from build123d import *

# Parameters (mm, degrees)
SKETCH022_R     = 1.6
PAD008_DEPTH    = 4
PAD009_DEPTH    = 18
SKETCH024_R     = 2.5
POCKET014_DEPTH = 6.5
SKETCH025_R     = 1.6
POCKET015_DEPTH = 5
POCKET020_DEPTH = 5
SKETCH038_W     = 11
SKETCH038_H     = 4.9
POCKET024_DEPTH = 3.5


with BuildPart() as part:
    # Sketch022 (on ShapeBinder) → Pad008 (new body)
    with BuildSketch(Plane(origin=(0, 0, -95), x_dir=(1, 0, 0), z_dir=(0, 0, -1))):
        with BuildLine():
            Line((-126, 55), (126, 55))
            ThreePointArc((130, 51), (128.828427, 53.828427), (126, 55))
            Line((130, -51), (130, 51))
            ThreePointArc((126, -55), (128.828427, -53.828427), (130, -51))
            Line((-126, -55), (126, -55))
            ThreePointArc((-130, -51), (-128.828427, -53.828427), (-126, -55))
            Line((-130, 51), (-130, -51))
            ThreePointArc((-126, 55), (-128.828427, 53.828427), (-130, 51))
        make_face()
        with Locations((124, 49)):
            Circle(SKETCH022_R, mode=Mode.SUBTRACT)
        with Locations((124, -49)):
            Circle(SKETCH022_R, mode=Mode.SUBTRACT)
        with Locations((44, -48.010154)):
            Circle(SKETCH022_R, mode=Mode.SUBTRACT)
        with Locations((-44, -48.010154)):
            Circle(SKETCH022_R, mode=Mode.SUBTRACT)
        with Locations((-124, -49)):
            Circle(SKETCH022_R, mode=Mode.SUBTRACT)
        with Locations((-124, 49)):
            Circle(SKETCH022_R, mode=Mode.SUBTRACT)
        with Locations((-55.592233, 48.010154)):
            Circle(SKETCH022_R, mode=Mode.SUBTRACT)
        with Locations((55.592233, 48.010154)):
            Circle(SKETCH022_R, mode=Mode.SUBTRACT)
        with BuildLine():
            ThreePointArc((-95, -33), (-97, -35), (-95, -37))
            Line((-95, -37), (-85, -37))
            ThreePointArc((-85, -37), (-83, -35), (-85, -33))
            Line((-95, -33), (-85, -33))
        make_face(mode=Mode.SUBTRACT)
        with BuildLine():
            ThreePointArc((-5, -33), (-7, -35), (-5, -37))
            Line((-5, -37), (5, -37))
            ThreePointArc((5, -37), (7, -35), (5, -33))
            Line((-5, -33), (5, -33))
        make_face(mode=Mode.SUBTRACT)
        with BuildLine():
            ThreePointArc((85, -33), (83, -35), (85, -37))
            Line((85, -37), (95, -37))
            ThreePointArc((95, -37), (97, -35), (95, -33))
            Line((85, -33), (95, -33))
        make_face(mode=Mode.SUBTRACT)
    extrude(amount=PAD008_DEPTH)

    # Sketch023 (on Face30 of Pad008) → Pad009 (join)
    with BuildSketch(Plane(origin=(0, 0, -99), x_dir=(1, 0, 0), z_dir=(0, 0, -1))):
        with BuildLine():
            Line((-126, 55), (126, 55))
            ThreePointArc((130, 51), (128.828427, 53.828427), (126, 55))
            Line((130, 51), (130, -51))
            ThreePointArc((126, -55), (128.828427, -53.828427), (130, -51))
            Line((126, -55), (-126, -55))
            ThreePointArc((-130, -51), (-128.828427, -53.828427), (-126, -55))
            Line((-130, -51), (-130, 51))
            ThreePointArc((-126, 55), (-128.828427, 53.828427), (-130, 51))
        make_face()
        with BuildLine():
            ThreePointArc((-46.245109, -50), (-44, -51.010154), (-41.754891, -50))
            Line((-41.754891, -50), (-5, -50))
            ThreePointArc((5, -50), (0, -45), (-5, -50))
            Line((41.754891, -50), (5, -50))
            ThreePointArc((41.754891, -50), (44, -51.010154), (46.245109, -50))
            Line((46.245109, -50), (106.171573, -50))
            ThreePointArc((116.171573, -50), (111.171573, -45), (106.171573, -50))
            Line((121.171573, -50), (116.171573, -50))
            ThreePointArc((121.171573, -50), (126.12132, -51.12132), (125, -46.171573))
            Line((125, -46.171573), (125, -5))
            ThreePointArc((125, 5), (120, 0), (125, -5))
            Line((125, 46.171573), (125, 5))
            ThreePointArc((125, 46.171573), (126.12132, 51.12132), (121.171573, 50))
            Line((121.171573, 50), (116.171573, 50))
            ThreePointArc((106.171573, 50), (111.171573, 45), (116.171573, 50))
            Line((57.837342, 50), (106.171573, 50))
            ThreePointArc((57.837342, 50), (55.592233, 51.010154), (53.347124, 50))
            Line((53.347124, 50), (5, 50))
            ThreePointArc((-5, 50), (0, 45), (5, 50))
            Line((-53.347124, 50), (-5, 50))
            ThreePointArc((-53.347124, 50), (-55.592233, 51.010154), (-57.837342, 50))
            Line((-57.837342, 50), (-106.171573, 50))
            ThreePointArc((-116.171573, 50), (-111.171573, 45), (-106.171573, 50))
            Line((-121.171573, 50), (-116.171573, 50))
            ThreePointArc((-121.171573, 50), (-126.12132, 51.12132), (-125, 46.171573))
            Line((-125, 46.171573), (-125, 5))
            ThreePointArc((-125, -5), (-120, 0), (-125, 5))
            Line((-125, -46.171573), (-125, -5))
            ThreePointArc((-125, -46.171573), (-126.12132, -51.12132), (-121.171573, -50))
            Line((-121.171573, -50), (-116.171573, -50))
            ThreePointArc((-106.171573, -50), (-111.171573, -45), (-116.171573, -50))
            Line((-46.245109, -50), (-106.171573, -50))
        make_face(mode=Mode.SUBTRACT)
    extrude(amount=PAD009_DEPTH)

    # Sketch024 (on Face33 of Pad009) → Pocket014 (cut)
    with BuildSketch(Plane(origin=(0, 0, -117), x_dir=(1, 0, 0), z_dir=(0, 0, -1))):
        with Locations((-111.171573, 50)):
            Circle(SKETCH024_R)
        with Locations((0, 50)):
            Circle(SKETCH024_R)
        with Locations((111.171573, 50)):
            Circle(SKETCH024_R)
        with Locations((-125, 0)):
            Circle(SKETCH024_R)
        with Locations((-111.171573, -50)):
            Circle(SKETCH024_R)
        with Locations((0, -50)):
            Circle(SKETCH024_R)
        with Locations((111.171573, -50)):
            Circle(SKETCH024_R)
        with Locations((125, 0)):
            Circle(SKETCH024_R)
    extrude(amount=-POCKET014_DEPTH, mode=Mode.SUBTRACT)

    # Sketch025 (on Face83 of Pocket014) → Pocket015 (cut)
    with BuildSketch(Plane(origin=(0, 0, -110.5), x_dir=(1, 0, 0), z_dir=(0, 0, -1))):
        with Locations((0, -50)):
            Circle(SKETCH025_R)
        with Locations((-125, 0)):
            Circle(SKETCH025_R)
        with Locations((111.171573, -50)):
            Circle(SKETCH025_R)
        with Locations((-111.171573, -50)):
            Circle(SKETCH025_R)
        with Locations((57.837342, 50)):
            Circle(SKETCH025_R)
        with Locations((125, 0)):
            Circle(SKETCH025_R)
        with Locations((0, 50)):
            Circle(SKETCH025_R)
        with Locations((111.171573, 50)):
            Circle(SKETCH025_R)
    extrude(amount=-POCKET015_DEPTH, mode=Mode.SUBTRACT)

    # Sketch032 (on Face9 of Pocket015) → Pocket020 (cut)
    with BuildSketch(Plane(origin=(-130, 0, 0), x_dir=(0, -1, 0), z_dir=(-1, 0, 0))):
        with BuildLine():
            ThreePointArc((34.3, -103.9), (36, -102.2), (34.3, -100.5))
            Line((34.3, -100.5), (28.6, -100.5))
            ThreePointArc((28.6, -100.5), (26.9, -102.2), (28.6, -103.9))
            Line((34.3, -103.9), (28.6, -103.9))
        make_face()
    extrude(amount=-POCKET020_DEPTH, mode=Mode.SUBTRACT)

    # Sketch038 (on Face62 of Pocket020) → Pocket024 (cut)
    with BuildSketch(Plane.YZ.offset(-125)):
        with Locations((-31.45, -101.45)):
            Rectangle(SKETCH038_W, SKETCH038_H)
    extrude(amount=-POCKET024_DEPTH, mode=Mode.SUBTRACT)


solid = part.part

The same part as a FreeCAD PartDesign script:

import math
import FreeCAD as App
import Part
import Sketcher


def add_polygon(sketch, points):
    """Adds a closed chain of lines whose ends are joined by coincident constraints."""
    first, n = sketch.GeometryCount, len(points)
    for a, b in zip(points, points[1:] + points[:1]):
        sketch.addGeometry(Part.LineSegment(App.Vector(*a, 0), App.Vector(*b, 0)), False)
    for i in range(n):
        sketch.addConstraint(Sketcher.Constraint("Coincident", first + i, 2, first + (i + 1) % n, 1))

doc = App.newDocument("Part")
params = doc.addObject("Spreadsheet::Sheet", "Params")
for row, (alias, value) in enumerate([
    ("sketch1_radius", "4 mm"),
    ("sketch1_radius2", "2 mm"),
    ("sketch1_diameter", "3.2 mm"),
    ("sketch1_width", "252 mm"),
    ("sketch1_width2", "10 mm"),
    ("pad1_length", "4 mm"),
    ("sketch2_radius", "4 mm"),
    ("sketch2_radius2", "5 mm"),
    ("sketch2_radius3", "3 mm"),
    ("sketch2_width", "252 mm"),
    ("sketch2_width2", "5 mm"),
    ("pad2_length", "18 mm"),
    ("sketch3_diameter", "5 mm"),
    ("pocket1_length", "6.5 mm"),
    ("sketch4_diameter", "3.2 mm"),
    ("pocket2_length", "5 mm"),
    ("sketch5_radius", "1.7 mm"),
    ("sketch5_width", "5.7 mm"),
    ("pocket3_length", "5 mm"),
    ("sketch6_width", "11 mm"),
    ("sketch6_height", "4.9 mm"),
    ("pocket4_length", "3.5 mm"),
], start=1):
    params.set(f"A{row}", alias)
    params.set(f"B{row}", "=" + value)
    params.setAlias(f"B{row}", alias)

body = doc.addObject("PartDesign::Body", "Body")

# Sketch on XY plane
sketch1 = body.newObject("Sketcher::SketchObject", "Sketch")
sketch1.AttachmentSupport = (doc.getObject("XY_Plane"), [""])
sketch1.MapMode = "FlatFace"
sketch1.AttachmentOffset = App.Placement(App.Vector(0, 0, -95), App.Rotation())
sketch1.addGeometry([
    Part.LineSegment(App.Vector(126, -55, 0), App.Vector(-126, -55, 0)),  # 0
    Part.ArcOfCircle(Part.Circle(App.Vector(-126, -51, 0), App.Vector(0, 0, 1), 4), math.radians(-179.999994), math.radians(-90.000006)),  # 1
    Part.LineSegment(App.Vector(-130, -51, 0), App.Vector(-130, 51, 0)),  # 2
    Part.ArcOfCircle(Part.Circle(App.Vector(-126, 51, 0), App.Vector(0, 0, 1), 4), math.radians(90.000006), math.radians(179.999994)),  # 3
    Part.LineSegment(App.Vector(-126, 55, 0), App.Vector(126, 55, 0)),  # 4
    Part.ArcOfCircle(Part.Circle(App.Vector(126, 51, 0), App.Vector(0, 0, 1), 4), math.radians(0.000006), math.radians(89.999994)),  # 5
    Part.LineSegment(App.Vector(130, 51, 0), App.Vector(130, -51, 0)),  # 6
    Part.ArcOfCircle(Part.Circle(App.Vector(126, -51, 0), App.Vector(0, 0, 1), 4), math.radians(-89.999994), math.radians(-0.000006)),  # 7
    Part.Circle(App.Vector(124, 49, 0), App.Vector(0, 0, 1), 1.6),  # 8
    Part.LineSegment(App.Vector(85, 33, 0), App.Vector(95, 33, 0)),  # 9
    Part.ArcOfCircle(Part.Circle(App.Vector(95, 35, 0), App.Vector(0, 0, 1), 2), math.radians(-90), math.radians(90)),  # 10
    Part.LineSegment(App.Vector(95, 37, 0), App.Vector(85, 37, 0)),  # 11
    Part.ArcOfCircle(Part.Circle(App.Vector(85, 35, 0), App.Vector(0, 0, 1), 2), math.radians(90), math.radians(270)),  # 12
    Part.Circle(App.Vector(44, 48.010154, 0), App.Vector(0, 0, 1), 1.6),  # 13
    Part.Circle(App.Vector(-44, 48.010154, 0), App.Vector(0, 0, 1), 1.6),  # 14
    Part.LineSegment(App.Vector(-5, 33, 0), App.Vector(5, 33, 0)),  # 15
    Part.ArcOfCircle(Part.Circle(App.Vector(5, 35, 0), App.Vector(0, 0, 1), 2), math.radians(-90), math.radians(90)),  # 16
    Part.LineSegment(App.Vector(5, 37, 0), App.Vector(-5, 37, 0)),  # 17
    Part.ArcOfCircle(Part.Circle(App.Vector(-5, 35, 0), App.Vector(0, 0, 1), 2), math.radians(90), math.radians(270)),  # 18
    Part.Circle(App.Vector(-124, 49, 0), App.Vector(0, 0, 1), 1.6),  # 19
    Part.LineSegment(App.Vector(-95, 33, 0), App.Vector(-85, 33, 0)),  # 20
    Part.ArcOfCircle(Part.Circle(App.Vector(-85, 35, 0), App.Vector(0, 0, 1), 2), math.radians(-90), math.radians(90)),  # 21
    Part.LineSegment(App.Vector(-85, 37, 0), App.Vector(-95, 37, 0)),  # 22
    Part.ArcOfCircle(Part.Circle(App.Vector(-95, 35, 0), App.Vector(0, 0, 1), 2), math.radians(90), math.radians(270)),  # 23
    Part.Circle(App.Vector(124, -49, 0), App.Vector(0, 0, 1), 1.6),  # 24
    Part.Circle(App.Vector(55.592233, -48.010154, 0), App.Vector(0, 0, 1), 1.6),  # 25
    Part.Circle(App.Vector(-55.592233, -48.010154, 0), App.Vector(0, 0, 1), 1.6),  # 26
    Part.Circle(App.Vector(-124, -49, 0), App.Vector(0, 0, 1), 1.6),  # 27
], False)
sketch1.addConstraint([
    Sketcher.Constraint("Tangent", 0, 2, 1, 2),
    Sketcher.Constraint("Tangent", 1, 1, 2, 1),
    Sketcher.Constraint("Tangent", 2, 2, 3, 2),
    Sketcher.Constraint("Tangent", 3, 1, 4, 1),
    Sketcher.Constraint("Tangent", 4, 2, 5, 2),
    Sketcher.Constraint("Tangent", 5, 1, 6, 1),
    Sketcher.Constraint("Tangent", 6, 2, 7, 2),
    Sketcher.Constraint("Tangent", 7, 1, 0, 1),
    Sketcher.Constraint("Tangent", 9, 2, 10, 1),
    Sketcher.Constraint("Tangent", 10, 2, 11, 1),
    Sketcher.Constraint("Tangent", 11, 2, 12, 1),
    Sketcher.Constraint("Tangent", 12, 2, 9, 1),
    Sketcher.Constraint("Tangent", 15, 2, 16, 1),
    Sketcher.Constraint("Tangent", 16, 2, 17, 1),
    Sketcher.Constraint("Tangent", 17, 2, 18, 1),
    Sketcher.Constraint("Tangent", 18, 2, 15, 1),
    Sketcher.Constraint("Tangent", 20, 2, 21, 1),
    Sketcher.Constraint("Tangent", 21, 2, 22, 1),
    Sketcher.Constraint("Tangent", 22, 2, 23, 1),
    Sketcher.Constraint("Tangent", 23, 2, 20, 1),
    Sketcher.Constraint("Horizontal", 0),
    Sketcher.Constraint("Vertical", 2),
    Sketcher.Constraint("Horizontal", 4),
    Sketcher.Constraint("Vertical", 6),
    Sketcher.Constraint("Horizontal", 9),
    Sketcher.Constraint("Horizontal", 11),
    Sketcher.Constraint("Horizontal", 15),
    Sketcher.Constraint("Horizontal", 17),
    Sketcher.Constraint("Horizontal", 20),
    Sketcher.Constraint("Horizontal", 22),
    Sketcher.Constraint("Equal", 1, 3),
    Sketcher.Constraint("Equal", 3, 5),
    Sketcher.Constraint("Equal", 5, 7),
    Sketcher.Constraint("Equal", 8, 13),
    Sketcher.Constraint("Equal", 13, 14),
    Sketcher.Constraint("Equal", 12, 16),
    Sketcher.Constraint("Equal", 14, 19),
    Sketcher.Constraint("Equal", 18, 21),
    Sketcher.Constraint("Equal", 19, 24),
    Sketcher.Constraint("Equal", 24, 25),
    Sketcher.Constraint("Equal", 25, 26),
    Sketcher.Constraint("Equal", 26, 27),
    Sketcher.Constraint("Symmetric", 1, 3, 5, 3, -1, 1),
    Sketcher.Constraint("Symmetric", 19, 3, 24, 3, -1, 1),
    Sketcher.Constraint("Symmetric", 8, 3, 27, 3, -1, 1),
    Sketcher.Constraint("Symmetric", 13, 3, 14, 3, -2),
    Sketcher.Constraint("Symmetric", 8, 3, 19, 3, -2),
    Sketcher.Constraint("Symmetric", 12, 3, 21, 3, -2),
    Sketcher.Constraint("Symmetric", 25, 3, 26, 3, -2),
    Sketcher.Constraint("Horizontal", 12, 3, 16, 3),
    Sketcher.Constraint("Equal", 11, 15),
    Sketcher.Constraint("Equal", 17, 20),
    Sketcher.Constraint("Radius", 1, 4.0),
    Sketcher.Constraint("Radius", 10, 2.0),
    Sketcher.Constraint("Diameter", 8, 3.2),
    Sketcher.Constraint("DistanceX", 0, 2, 0, 1, 252.0),
    Sketcher.Constraint("DistanceX", 9, 1, 9, 2, 10.0),
    Sketcher.Constraint("DistanceY", 2, 1, 2, 2, 102.0),
    Sketcher.Constraint("DistanceX", -1, 1, 8, 3, 124.0),
    Sketcher.Constraint("DistanceY", -1, 1, 8, 3, 49.0),
    Sketcher.Constraint("DistanceX", -1, 1, 10, 3, 95.0),
    Sketcher.Constraint("DistanceY", -1, 1, 10, 3, 35.0),
    Sketcher.Constraint("DistanceX", -1, 1, 13, 3, 44.0),
    Sketcher.Constraint("DistanceX", -1, 1, 16, 3, 5.0),
    Sketcher.Constraint("DistanceY", 25, 3, 13, 3, 96.020308),
    Sketcher.Constraint("DistanceY", -1, 1, 13, 3, 48.010154),
    Sketcher.Constraint("DistanceX", -1, 1, 25, 3, 55.592233),
])
sketch1.setExpression("Constraints[52]", "Params.sketch1_radius")
sketch1.setExpression("Constraints[53]", "Params.sketch1_radius2")
sketch1.setExpression("Constraints[54]", "Params.sketch1_diameter")
sketch1.setExpression("Constraints[55]", "Params.sketch1_width")
sketch1.setExpression("Constraints[56]", "Params.sketch1_width2")
pad1 = body.newObject("PartDesign::Pad", "Pad")
pad1.Profile = sketch1
pad1.setExpression("Length", "Params.pad1_length")
pad1.Reversed = True

# Sketch on XY plane
sketch2 = body.newObject("Sketcher::SketchObject", "Sketch001")
sketch2.AttachmentSupport = (doc.getObject("XY_Plane"), [""])
sketch2.MapMode = "FlatFace"
sketch2.AttachmentOffset = App.Placement(App.Vector(0, 0, -99), App.Rotation())
sketch2.addGeometry([
    Part.LineSegment(App.Vector(126, -55, 0), App.Vector(-126, -55, 0)),  # 0
    Part.ArcOfCircle(Part.Circle(App.Vector(-126, -51, 0), App.Vector(0, 0, 1), 4), math.radians(-179.999994), math.radians(-90.000006)),  # 1
    Part.LineSegment(App.Vector(-130, -51, 0), App.Vector(-130, 51, 0)),  # 2
    Part.ArcOfCircle(Part.Circle(App.Vector(-126, 51, 0), App.Vector(0, 0, 1), 4), math.radians(90.000006), math.radians(179.999994)),  # 3
    Part.LineSegment(App.Vector(-126, 55, 0), App.Vector(126, 55, 0)),  # 4
    Part.ArcOfCircle(Part.Circle(App.Vector(126, 51, 0), App.Vector(0, 0, 1), 4), math.radians(0.000006), math.radians(89.999994)),  # 5
    Part.LineSegment(App.Vector(130, 51, 0), App.Vector(130, -51, 0)),  # 6
    Part.ArcOfCircle(Part.Circle(App.Vector(126, -51, 0), App.Vector(0, 0, 1), 4), math.radians(-89.999994), math.radians(-0.000006)),  # 7
    Part.LineSegment(App.Vector(-46.245109, 50, 0), App.Vector(-106.171573, 50, 0)),  # 8
    Part.ArcOfCircle(Part.Circle(App.Vector(-111.171573, 50, 0), App.Vector(0, 0, 1), 5), math.radians(180), math.radians(360)),  # 9
    Part.LineSegment(App.Vector(-116.171573, 50, 0), App.Vector(-121.171573, 50, 0)),  # 10
    Part.ArcOfCircle(Part.Circle(App.Vector(-124, 49, 0), App.Vector(0, 0, 1), 3), math.radians(19.471226), math.radians(250.528774)),  # 11
    Part.LineSegment(App.Vector(-125, 46.171573, 0), App.Vector(-125, 5, 0)),  # 12
    Part.ArcOfCircle(Part.Circle(App.Vector(-125, 0, 0), App.Vector(0, 0, 1), 5), math.radians(-90), math.radians(90)),  # 13
    Part.LineSegment(App.Vector(-125, -5, 0), App.Vector(-125, -46.171573, 0)),  # 14
    Part.ArcOfCircle(Part.Circle(App.Vector(-124, -49, 0), App.Vector(0, 0, 1), 3), math.radians(109.471226), math.radians(340.528774)),  # 15
    Part.LineSegment(App.Vector(-121.171573, -50, 0), App.Vector(-116.171573, -50, 0)),  # 16
    Part.ArcOfCircle(Part.Circle(App.Vector(-111.171573, -50, 0), App.Vector(0, 0, 1), 5), math.radians(0), math.radians(180)),  # 17
    Part.LineSegment(App.Vector(-106.171573, -50, 0), App.Vector(-57.837342, -50, 0)),  # 18
    Part.ArcOfCircle(Part.Circle(App.Vector(-55.592233, -48.010153, 0), App.Vector(0, 0, 1), 3.000001), math.radians(-138.449334), math.radians(-41.550666)),  # 19
    Part.LineSegment(App.Vector(-53.347124, -50, 0), App.Vector(-5, -50, 0)),  # 20
    Part.ArcOfCircle(Part.Circle(App.Vector(0, -50, 0), App.Vector(0, 0, 1), 5), math.radians(0), math.radians(180)),  # 21
    Part.LineSegment(App.Vector(5, -50, 0), App.Vector(53.347124, -50, 0)),  # 22
    Part.ArcOfCircle(Part.Circle(App.Vector(55.592233, -48.010153, 0), App.Vector(0, 0, 1), 3.000001), math.radians(-138.449334), math.radians(-41.550666)),  # 23
    Part.LineSegment(App.Vector(57.837342, -50, 0), App.Vector(106.171573, -50, 0)),  # 24
    Part.ArcOfCircle(Part.Circle(App.Vector(111.171573, -50, 0), App.Vector(0, 0, 1), 5), math.radians(0), math.radians(180)),  # 25
    Part.LineSegment(App.Vector(116.171573, -50, 0), App.Vector(121.171573, -50, 0)),  # 26
    Part.ArcOfCircle(Part.Circle(App.Vector(124, -49, 0), App.Vector(0, 0, 1), 3), math.radians(-160.528774), math.radians(70.528774)),  # 27
    Part.LineSegment(App.Vector(125, -46.171573, 0), App.Vector(125, -5, 0)),  # 28
    Part.ArcOfCircle(Part.Circle(App.Vector(125, 0, 0), App.Vector(0, 0, 1), 5), math.radians(90), math.radians(270)),  # 29
    Part.LineSegment(App.Vector(125, 5, 0), App.Vector(125, 46.171573, 0)),  # 30
    Part.ArcOfCircle(Part.Circle(App.Vector(124, 49, 0), App.Vector(0, 0, 1), 3), math.radians(-70.528774), math.radians(160.528774)),  # 31
    Part.LineSegment(App.Vector(121.171573, 50, 0), App.Vector(116.171573, 50, 0)),  # 32
    Part.ArcOfCircle(Part.Circle(App.Vector(111.171573, 50, 0), App.Vector(0, 0, 1), 5), math.radians(180), math.radians(360)),  # 33
    Part.LineSegment(App.Vector(106.171573, 50, 0), App.Vector(46.245109, 50, 0)),  # 34
    Part.ArcOfCircle(Part.Circle(App.Vector(44, 48.010153, 0), App.Vector(0, 0, 1), 3.000001), math.radians(41.550666), math.radians(138.449334)),  # 35
    Part.LineSegment(App.Vector(41.754891, 50, 0), App.Vector(5, 50, 0)),  # 36
    Part.ArcOfCircle(Part.Circle(App.Vector(0, 50, 0), App.Vector(0, 0, 1), 5), math.radians(180), math.radians(360)),  # 37
    Part.LineSegment(App.Vector(-5, 50, 0), App.Vector(-41.754891, 50, 0)),  # 38
    Part.ArcOfCircle(Part.Circle(App.Vector(-44, 48.010153, 0), App.Vector(0, 0, 1), 3.000001), math.radians(41.550666), math.radians(138.449334)),  # 39
], False)
sketch2.addConstraint([
    Sketcher.Constraint("Tangent", 0, 2, 1, 2),
    Sketcher.Constraint("Tangent", 1, 1, 2, 1),
    Sketcher.Constraint("Tangent", 2, 2, 3, 2),
    Sketcher.Constraint("Tangent", 3, 1, 4, 1),
    Sketcher.Constraint("Tangent", 4, 2, 5, 2),
    Sketcher.Constraint("Tangent", 5, 1, 6, 1),
    Sketcher.Constraint("Tangent", 6, 2, 7, 2),
    Sketcher.Constraint("Tangent", 7, 1, 0, 1),
    Sketcher.Constraint("Coincident", 8, 2, 9, 2),
    Sketcher.Constraint("Coincident", 9, 1, 10, 1),
    Sketcher.Constraint("Coincident", 10, 2, 11, 1),
    Sketcher.Constraint("Coincident", 11, 2, 12, 1),
    Sketcher.Constraint("Coincident", 12, 2, 13, 2),
    Sketcher.Constraint("Coincident", 13, 1, 14, 1),
    Sketcher.Constraint("Coincident", 14, 2, 15, 1),
    Sketcher.Constraint("Coincident", 15, 2, 16, 1),
    Sketcher.Constraint("Coincident", 16, 2, 17, 2),
    Sketcher.Constraint("Coincident", 17, 1, 18, 1),
    Sketcher.Constraint("Coincident", 18, 2, 19, 1),
    Sketcher.Constraint("Coincident", 19, 2, 20, 1),
    Sketcher.Constraint("Coincident", 20, 2, 21, 2),
    Sketcher.Constraint("Coincident", 21, 1, 22, 1),
    Sketcher.Constraint("Coincident", 22, 2, 23, 1),
    Sketcher.Constraint("Coincident", 23, 2, 24, 1),
    Sketcher.Constraint("Coincident", 24, 2, 25, 2),
    Sketcher.Constraint("Coincident", 25, 1, 26, 1),
    Sketcher.Constraint("Coincident", 26, 2, 27, 1),
    Sketcher.Constraint("Coincident", 27, 2, 28, 1),
    Sketcher.Constraint("Coincident", 28, 2, 29, 2),
    Sketcher.Constraint("Coincident", 29, 1, 30, 1),
    Sketcher.Constraint("Coincident", 30, 2, 31, 1),
    Sketcher.Constraint("Coincident", 31, 2, 32, 1),
    Sketcher.Constraint("Coincident", 32, 2, 33, 2),
    Sketcher.Constraint("Coincident", 33, 1, 34, 1),
    Sketcher.Constraint("Coincident", 34, 2, 35, 1),
    Sketcher.Constraint("Coincident", 35, 2, 36, 1),
    Sketcher.Constraint("Coincident", 36, 2, 37, 2),
    Sketcher.Constraint("Coincident", 37, 1, 38, 1),
    Sketcher.Constraint("Coincident", 38, 2, 39, 1),
    Sketcher.Constraint("Coincident", 39, 2, 8, 1),
    Sketcher.Constraint("Horizontal", 0),
    Sketcher.Constraint("Vertical", 2),
    Sketcher.Constraint("Horizontal", 4),
    Sketcher.Constraint("Vertical", 6),
    Sketcher.Constraint("Horizontal", 8),
    Sketcher.Constraint("Horizontal", 10),
    Sketcher.Constraint("Vertical", 12),
    Sketcher.Constraint("Vertical", 14),
    Sketcher.Constraint("Horizontal", 16),
    Sketcher.Constraint("Horizontal", 18),
    Sketcher.Constraint("Horizontal", 20),
    Sketcher.Constraint("Horizontal", 22),
    Sketcher.Constraint("Horizontal", 24),
    Sketcher.Constraint("Horizontal", 26),
    Sketcher.Constraint("Vertical", 28),
    Sketcher.Constraint("Vertical", 30),
    Sketcher.Constraint("Horizontal", 32),
    Sketcher.Constraint("Horizontal", 34),
    Sketcher.Constraint("Horizontal", 36),
    Sketcher.Constraint("Horizontal", 38),
    Sketcher.Constraint("Equal", 1, 3),
    Sketcher.Constraint("Equal", 3, 5),
    Sketcher.Constraint("Equal", 5, 7),
    Sketcher.Constraint("Equal", 9, 13),
    Sketcher.Constraint("Equal", 11, 15),
    Sketcher.Constraint("Equal", 13, 17),
    Sketcher.Constraint("Equal", 15, 19),
    Sketcher.Constraint("Equal", 17, 21),
    Sketcher.Constraint("Equal", 19, 23),
    Sketcher.Constraint("Equal", 21, 25),
    Sketcher.Constraint("Equal", 23, 27),
    Sketcher.Constraint("Equal", 25, 29),
    Sketcher.Constraint("Equal", 27, 31),
    Sketcher.Constraint("Equal", 29, 33),
    Sketcher.Constraint("Equal", 31, 35),
    Sketcher.Constraint("Equal", 33, 37),
    Sketcher.Constraint("Equal", 35, 39),
    Sketcher.Constraint("Symmetric", 1, 3, 5, 3, -1, 1),
    Sketcher.Constraint("Symmetric", 9, 3, 25, 3, -1, 1),
    Sketcher.Constraint("Symmetric", 11, 3, 27, 3, -1, 1),
    Sketcher.Constraint("Symmetric", 13, 3, 29, 3, -1, 1),
    Sketcher.Constraint("Symmetric", 15, 3, 31, 3, -1, 1),
    Sketcher.Constraint("Symmetric", 17, 3, 33, 3, -1, 1),
    Sketcher.Constraint("Symmetric", 21, 3, 37, 3, -1, 1),
    Sketcher.Constraint("Symmetric", 19, 3, 23, 3, -2),
    Sketcher.Constraint("Symmetric", 17, 3, 25, 3, -2),
    Sketcher.Constraint("Symmetric", 15, 3, 27, 3, -2),
    Sketcher.Constraint("Symmetric", 35, 3, 39, 3, -2),
    Sketcher.Constraint("Symmetric", 20, 2, 21, 1, -2),
    Sketcher.Constraint("Symmetric", 13, 1, 28, 2, -2),
    Sketcher.Constraint("Horizontal", 17, 3, 21, 3),
    Sketcher.Constraint("Horizontal", 37, 3, 8, 2),
    Sketcher.Constraint("Horizontal", 8, 2, 9, 1),
    Sketcher.Constraint("Horizontal", 25, 3, 15, 2),
    Sketcher.Constraint("Horizontal", 16, 2, 17, 1),
    Sketcher.Constraint("Horizontal", 18, 2, 19, 2),
    Sketcher.Constraint("Horizontal", 22, 2, 23, 2),
    Sketcher.Constraint("Horizontal", 24, 2, 25, 1),
    Sketcher.Constraint("Horizontal", 11, 2, 30, 2),
    Sketcher.Constraint("Horizontal", 10, 2, 31, 2),
    Sketcher.Constraint("Horizontal", 32, 2, 33, 1),
    Sketcher.Constraint("Horizontal", 34, 2, 35, 2),
    Sketcher.Constraint("Horizontal", 36, 2, 37, 1),
    Sketcher.Constraint("Vertical", 13, 3, 11, 2),
    Sketcher.Constraint("Vertical", 12, 2, 13, 1),
    Sketcher.Constraint("Radius", 1, 4.0),
    Sketcher.Constraint("Radius", 9, 5.0),
    Sketcher.Constraint("Radius", 11, 3.0),
    Sketcher.Constraint("DistanceX", 0, 2, 0, 1, 252.0),
    Sketcher.Constraint("DistanceX", 10, 2, 10, 1, 5.0),
    Sketcher.Constraint("DistanceY", 2, 1, 2, 2, 102.0),
    Sketcher.Constraint("DistanceY", -1, 1, 9, 3, 50.0),
    Sketcher.Constraint("DistanceX", 11, 3, -1, 1, 124.0),
    Sketcher.Constraint("DistanceY", -1, 1, 11, 3, 49.0),
    Sketcher.Constraint("DistanceX", 13, 3, -1, 1, 125.0),
    Sketcher.Constraint("DistanceX", -1, 1, 35, 3, 44.0),
    Sketcher.Constraint("DistanceX", 18, 1, 18, 2, 48.334231),
    Sketcher.Constraint("DistanceX", 36, 2, 36, 1, 36.754891),
    Sketcher.Constraint("DistanceX", 20, 1, 20, 2, 48.347124),
])
sketch2.setExpression("Constraints[105]", "Params.sketch2_radius")
sketch2.setExpression("Constraints[106]", "Params.sketch2_radius2")
sketch2.setExpression("Constraints[107]", "Params.sketch2_radius3")
sketch2.setExpression("Constraints[108]", "Params.sketch2_width")
sketch2.setExpression("Constraints[109]", "Params.sketch2_width2")
pad2 = body.newObject("PartDesign::Pad", "Pad001")
pad2.Profile = sketch2
pad2.setExpression("Length", "Params.pad2_length")
pad2.Reversed = True

# Sketch on XY plane
sketch3 = body.newObject("Sketcher::SketchObject", "Sketch002")
sketch3.AttachmentSupport = (doc.getObject("XY_Plane"), [""])
sketch3.MapMode = "FlatFace"
sketch3.AttachmentOffset = App.Placement(App.Vector(0, 0, -117), App.Rotation())
sketch3.addGeometry([
    Part.Circle(App.Vector(-111.171573, -50, 0), App.Vector(0, 0, 1), 2.5),  # 0
    Part.Circle(App.Vector(0, -50, 0), App.Vector(0, 0, 1), 2.5),  # 1
    Part.Circle(App.Vector(111.171573, -50, 0), App.Vector(0, 0, 1), 2.5),  # 2
    Part.Circle(App.Vector(-125, 0, 0), App.Vector(0, 0, 1), 2.5),  # 3
    Part.Circle(App.Vector(-111.171573, 50, 0), App.Vector(0, 0, 1), 2.5),  # 4
    Part.Circle(App.Vector(0, 50, 0), App.Vector(0, 0, 1), 2.5),  # 5
    Part.Circle(App.Vector(111.171573, 50, 0), App.Vector(0, 0, 1), 2.5),  # 6
    Part.Circle(App.Vector(125, 0, 0), App.Vector(0, 0, 1), 2.5),  # 7
], False)
sketch3.addConstraint([
    Sketcher.Constraint("Equal", 0, 1),
    Sketcher.Constraint("Equal", 1, 2),
    Sketcher.Constraint("Equal", 2, 3),
    Sketcher.Constraint("Equal", 3, 4),
    Sketcher.Constraint("Equal", 4, 5),
    Sketcher.Constraint("Equal", 5, 6),
    Sketcher.Constraint("Equal", 6, 7),
    Sketcher.Constraint("Symmetric", 2, 3, 4, 3, -1, 1),
    Sketcher.Constraint("Symmetric", 1, 3, 5, 3, -1, 1),
    Sketcher.Constraint("Symmetric", 0, 3, 6, 3, -1, 1),
    Sketcher.Constraint("Symmetric", 3, 3, 7, 3, -1, 1),
    Sketcher.Constraint("Symmetric", 0, 3, 2, 3, -2),
    Sketcher.Constraint("PointOnObject", 1, 3, -2),
    Sketcher.Constraint("PointOnObject", 3, 3, -1),
    Sketcher.Constraint("Horizontal", 0, 3, 1, 3),
    Sketcher.Constraint("Diameter", 0, 5.0),
    Sketcher.Constraint("DistanceY", 0, 3, -1, 1, 50.0),
    Sketcher.Constraint("DistanceX", 3, 3, -1, 1, 125.0),
    Sketcher.Constraint("DistanceX", 0, 3, -1, 1, 111.171573),
])
sketch3.setExpression("Constraints[15]", "Params.sketch3_diameter")
pocket1 = body.newObject("PartDesign::Pocket", "Pocket")
pocket1.Profile = sketch3
pocket1.setExpression("Length", "Params.pocket1_length")
pocket1.Reversed = True

# Sketch on XY plane
sketch4 = body.newObject("Sketcher::SketchObject", "Sketch003")
sketch4.AttachmentSupport = (doc.getObject("XY_Plane"), [""])
sketch4.MapMode = "FlatFace"
sketch4.AttachmentOffset = App.Placement(App.Vector(0, 0, -110.5), App.Rotation())
sketch4.addGeometry([
    Part.Circle(App.Vector(0, 50, 0), App.Vector(0, 0, 1), 1.6),  # 0
    Part.Circle(App.Vector(-125, 0, 0), App.Vector(0, 0, 1), 1.6),  # 1
    Part.Circle(App.Vector(111.171573, 50, 0), App.Vector(0, 0, 1), 1.6),  # 2
    Part.Circle(App.Vector(-111.171573, 50, 0), App.Vector(0, 0, 1), 1.6),  # 3
    Part.Circle(App.Vector(57.837342, -50, 0), App.Vector(0, 0, 1), 1.6),  # 4
    Part.Circle(App.Vector(125, 0, 0), App.Vector(0, 0, 1), 1.6),  # 5
    Part.Circle(App.Vector(0, -50, 0), App.Vector(0, 0, 1), 1.6),  # 6
    Part.Circle(App.Vector(111.171573, -50, 0), App.Vector(0, 0, 1), 1.6),  # 7
], False)
sketch4.addConstraint([
    Sketcher.Constraint("Equal", 0, 1),
    Sketcher.Constraint("Equal", 1, 2),
    Sketcher.Constraint("Equal", 2, 3),
    Sketcher.Constraint("Equal", 3, 4),
    Sketcher.Constraint("Equal", 4, 5),
    Sketcher.Constraint("Equal", 5, 6),
    Sketcher.Constraint("Equal", 6, 7),
    Sketcher.Constraint("Symmetric", 1, 3, 5, 3, -1, 1),
    Sketcher.Constraint("Symmetric", 0, 3, 6, 3, -1, 1),
    Sketcher.Constraint("Symmetric", 3, 3, 7, 3, -1, 1),
    Sketcher.Constraint("Symmetric", 2, 3, 3, 3, -2),
    Sketcher.Constraint("PointOnObject", 0, 3, -2),
    Sketcher.Constraint("PointOnObject", 1, 3, -1),
    Sketcher.Constraint("Horizontal", 0, 3, 2, 3),
    Sketcher.Constraint("Horizontal", 4, 3, 6, 3),
    Sketcher.Constraint("Diameter", 0, 3.2),
    Sketcher.Constraint("DistanceY", -1, 1, 0, 3, 50.0),
    Sketcher.Constraint("DistanceX", 1, 3, -1, 1, 125.0),
    Sketcher.Constraint("DistanceX", 4, 3, 2, 3, 53.334231),
    Sketcher.Constraint("DistanceX", 1, 3, 4, 3, 182.837342),
])
sketch4.setExpression("Constraints[15]", "Params.sketch4_diameter")
pocket2 = body.newObject("PartDesign::Pocket", "Pocket001")
pocket2.Profile = sketch4
pocket2.setExpression("Length", "Params.pocket2_length")
pocket2.Reversed = True

# Sketch on YZ plane
sketch5 = body.newObject("Sketcher::SketchObject", "Sketch004")
sketch5.AttachmentSupport = (doc.getObject("YZ_Plane"), [""])
sketch5.MapMode = "FlatFace"
sketch5.AttachmentOffset = App.Placement(App.Vector(0, 0, -130), App.Rotation())
sketch5.addGeometry([
    Part.ArcOfCircle(Part.Circle(App.Vector(-34.3, -102.2, 0), App.Vector(0, 0, 1), 1.7), math.radians(90), math.radians(270)),
    Part.LineSegment(App.Vector(-34.3, -100.5, 0), App.Vector(-28.6, -100.5, 0)),
    Part.ArcOfCircle(Part.Circle(App.Vector(-28.6, -102.2, 0), App.Vector(0, 0, 1), 1.7), math.radians(-90), math.radians(90)),
    Part.LineSegment(App.Vector(-28.6, -103.9, 0), App.Vector(-34.3, -103.9, 0)),
], False)
sketch5.addConstraint([
    Sketcher.Constraint("Tangent", 0, 1, 1, 1),
    Sketcher.Constraint("Tangent", 1, 2, 2, 2),
    Sketcher.Constraint("Tangent", 2, 1, 3, 1),
    Sketcher.Constraint("Tangent", 3, 2, 0, 2),
    Sketcher.Constraint("Horizontal", 1),
    Sketcher.Constraint("Horizontal", 3),
    Sketcher.Constraint("Radius", 0, 1.7),
    Sketcher.Constraint("DistanceX", 1, 1, 1, 2, 5.7),
    Sketcher.Constraint("DistanceX", 0, 3, -1, 1, 34.3),
    Sketcher.Constraint("DistanceY", 0, 3, -1, 1, 102.2),
])
sketch5.setExpression("Constraints[6]", "Params.sketch5_radius")
sketch5.setExpression("Constraints[7]", "Params.sketch5_width")
pocket3 = body.newObject("PartDesign::Pocket", "Pocket002")
pocket3.Profile = sketch5
pocket3.setExpression("Length", "Params.pocket3_length")
pocket3.Reversed = True

# Sketch on YZ plane
sketch6 = body.newObject("Sketcher::SketchObject", "Sketch005")
sketch6.AttachmentSupport = (doc.getObject("YZ_Plane"), [""])
sketch6.MapMode = "FlatFace"
sketch6.AttachmentOffset = App.Placement(App.Vector(0, 0, -125), App.Rotation())
add_polygon(sketch6, [(-36.95, -99), (-36.95, -103.9), (-25.95, -103.9), (-25.95, -99)])  # lines 0-3
sketch6.addConstraint([
    Sketcher.Constraint("Vertical", 0),
    Sketcher.Constraint("Horizontal", 1),
    Sketcher.Constraint("Vertical", 2),
    Sketcher.Constraint("Horizontal", 3),
    Sketcher.Constraint("DistanceX", 1, 1, 1, 2, 11.0),
    Sketcher.Constraint("DistanceY", 0, 2, 0, 1, 4.9),
    Sketcher.Constraint("DistanceY", 2, 2, -1, 1, 99.0),
    Sketcher.Constraint("DistanceX", 0, 2, -1, 1, 36.95),
])
sketch6.setExpression("Constraints[8]", "Params.sketch6_width")
sketch6.setExpression("Constraints[9]", "Params.sketch6_height")
pocket4 = body.newObject("PartDesign::Pocket", "Pocket003")
pocket4.Profile = sketch6
pocket4.setExpression("Length", "Params.pocket4_length")

doc.recompute()
